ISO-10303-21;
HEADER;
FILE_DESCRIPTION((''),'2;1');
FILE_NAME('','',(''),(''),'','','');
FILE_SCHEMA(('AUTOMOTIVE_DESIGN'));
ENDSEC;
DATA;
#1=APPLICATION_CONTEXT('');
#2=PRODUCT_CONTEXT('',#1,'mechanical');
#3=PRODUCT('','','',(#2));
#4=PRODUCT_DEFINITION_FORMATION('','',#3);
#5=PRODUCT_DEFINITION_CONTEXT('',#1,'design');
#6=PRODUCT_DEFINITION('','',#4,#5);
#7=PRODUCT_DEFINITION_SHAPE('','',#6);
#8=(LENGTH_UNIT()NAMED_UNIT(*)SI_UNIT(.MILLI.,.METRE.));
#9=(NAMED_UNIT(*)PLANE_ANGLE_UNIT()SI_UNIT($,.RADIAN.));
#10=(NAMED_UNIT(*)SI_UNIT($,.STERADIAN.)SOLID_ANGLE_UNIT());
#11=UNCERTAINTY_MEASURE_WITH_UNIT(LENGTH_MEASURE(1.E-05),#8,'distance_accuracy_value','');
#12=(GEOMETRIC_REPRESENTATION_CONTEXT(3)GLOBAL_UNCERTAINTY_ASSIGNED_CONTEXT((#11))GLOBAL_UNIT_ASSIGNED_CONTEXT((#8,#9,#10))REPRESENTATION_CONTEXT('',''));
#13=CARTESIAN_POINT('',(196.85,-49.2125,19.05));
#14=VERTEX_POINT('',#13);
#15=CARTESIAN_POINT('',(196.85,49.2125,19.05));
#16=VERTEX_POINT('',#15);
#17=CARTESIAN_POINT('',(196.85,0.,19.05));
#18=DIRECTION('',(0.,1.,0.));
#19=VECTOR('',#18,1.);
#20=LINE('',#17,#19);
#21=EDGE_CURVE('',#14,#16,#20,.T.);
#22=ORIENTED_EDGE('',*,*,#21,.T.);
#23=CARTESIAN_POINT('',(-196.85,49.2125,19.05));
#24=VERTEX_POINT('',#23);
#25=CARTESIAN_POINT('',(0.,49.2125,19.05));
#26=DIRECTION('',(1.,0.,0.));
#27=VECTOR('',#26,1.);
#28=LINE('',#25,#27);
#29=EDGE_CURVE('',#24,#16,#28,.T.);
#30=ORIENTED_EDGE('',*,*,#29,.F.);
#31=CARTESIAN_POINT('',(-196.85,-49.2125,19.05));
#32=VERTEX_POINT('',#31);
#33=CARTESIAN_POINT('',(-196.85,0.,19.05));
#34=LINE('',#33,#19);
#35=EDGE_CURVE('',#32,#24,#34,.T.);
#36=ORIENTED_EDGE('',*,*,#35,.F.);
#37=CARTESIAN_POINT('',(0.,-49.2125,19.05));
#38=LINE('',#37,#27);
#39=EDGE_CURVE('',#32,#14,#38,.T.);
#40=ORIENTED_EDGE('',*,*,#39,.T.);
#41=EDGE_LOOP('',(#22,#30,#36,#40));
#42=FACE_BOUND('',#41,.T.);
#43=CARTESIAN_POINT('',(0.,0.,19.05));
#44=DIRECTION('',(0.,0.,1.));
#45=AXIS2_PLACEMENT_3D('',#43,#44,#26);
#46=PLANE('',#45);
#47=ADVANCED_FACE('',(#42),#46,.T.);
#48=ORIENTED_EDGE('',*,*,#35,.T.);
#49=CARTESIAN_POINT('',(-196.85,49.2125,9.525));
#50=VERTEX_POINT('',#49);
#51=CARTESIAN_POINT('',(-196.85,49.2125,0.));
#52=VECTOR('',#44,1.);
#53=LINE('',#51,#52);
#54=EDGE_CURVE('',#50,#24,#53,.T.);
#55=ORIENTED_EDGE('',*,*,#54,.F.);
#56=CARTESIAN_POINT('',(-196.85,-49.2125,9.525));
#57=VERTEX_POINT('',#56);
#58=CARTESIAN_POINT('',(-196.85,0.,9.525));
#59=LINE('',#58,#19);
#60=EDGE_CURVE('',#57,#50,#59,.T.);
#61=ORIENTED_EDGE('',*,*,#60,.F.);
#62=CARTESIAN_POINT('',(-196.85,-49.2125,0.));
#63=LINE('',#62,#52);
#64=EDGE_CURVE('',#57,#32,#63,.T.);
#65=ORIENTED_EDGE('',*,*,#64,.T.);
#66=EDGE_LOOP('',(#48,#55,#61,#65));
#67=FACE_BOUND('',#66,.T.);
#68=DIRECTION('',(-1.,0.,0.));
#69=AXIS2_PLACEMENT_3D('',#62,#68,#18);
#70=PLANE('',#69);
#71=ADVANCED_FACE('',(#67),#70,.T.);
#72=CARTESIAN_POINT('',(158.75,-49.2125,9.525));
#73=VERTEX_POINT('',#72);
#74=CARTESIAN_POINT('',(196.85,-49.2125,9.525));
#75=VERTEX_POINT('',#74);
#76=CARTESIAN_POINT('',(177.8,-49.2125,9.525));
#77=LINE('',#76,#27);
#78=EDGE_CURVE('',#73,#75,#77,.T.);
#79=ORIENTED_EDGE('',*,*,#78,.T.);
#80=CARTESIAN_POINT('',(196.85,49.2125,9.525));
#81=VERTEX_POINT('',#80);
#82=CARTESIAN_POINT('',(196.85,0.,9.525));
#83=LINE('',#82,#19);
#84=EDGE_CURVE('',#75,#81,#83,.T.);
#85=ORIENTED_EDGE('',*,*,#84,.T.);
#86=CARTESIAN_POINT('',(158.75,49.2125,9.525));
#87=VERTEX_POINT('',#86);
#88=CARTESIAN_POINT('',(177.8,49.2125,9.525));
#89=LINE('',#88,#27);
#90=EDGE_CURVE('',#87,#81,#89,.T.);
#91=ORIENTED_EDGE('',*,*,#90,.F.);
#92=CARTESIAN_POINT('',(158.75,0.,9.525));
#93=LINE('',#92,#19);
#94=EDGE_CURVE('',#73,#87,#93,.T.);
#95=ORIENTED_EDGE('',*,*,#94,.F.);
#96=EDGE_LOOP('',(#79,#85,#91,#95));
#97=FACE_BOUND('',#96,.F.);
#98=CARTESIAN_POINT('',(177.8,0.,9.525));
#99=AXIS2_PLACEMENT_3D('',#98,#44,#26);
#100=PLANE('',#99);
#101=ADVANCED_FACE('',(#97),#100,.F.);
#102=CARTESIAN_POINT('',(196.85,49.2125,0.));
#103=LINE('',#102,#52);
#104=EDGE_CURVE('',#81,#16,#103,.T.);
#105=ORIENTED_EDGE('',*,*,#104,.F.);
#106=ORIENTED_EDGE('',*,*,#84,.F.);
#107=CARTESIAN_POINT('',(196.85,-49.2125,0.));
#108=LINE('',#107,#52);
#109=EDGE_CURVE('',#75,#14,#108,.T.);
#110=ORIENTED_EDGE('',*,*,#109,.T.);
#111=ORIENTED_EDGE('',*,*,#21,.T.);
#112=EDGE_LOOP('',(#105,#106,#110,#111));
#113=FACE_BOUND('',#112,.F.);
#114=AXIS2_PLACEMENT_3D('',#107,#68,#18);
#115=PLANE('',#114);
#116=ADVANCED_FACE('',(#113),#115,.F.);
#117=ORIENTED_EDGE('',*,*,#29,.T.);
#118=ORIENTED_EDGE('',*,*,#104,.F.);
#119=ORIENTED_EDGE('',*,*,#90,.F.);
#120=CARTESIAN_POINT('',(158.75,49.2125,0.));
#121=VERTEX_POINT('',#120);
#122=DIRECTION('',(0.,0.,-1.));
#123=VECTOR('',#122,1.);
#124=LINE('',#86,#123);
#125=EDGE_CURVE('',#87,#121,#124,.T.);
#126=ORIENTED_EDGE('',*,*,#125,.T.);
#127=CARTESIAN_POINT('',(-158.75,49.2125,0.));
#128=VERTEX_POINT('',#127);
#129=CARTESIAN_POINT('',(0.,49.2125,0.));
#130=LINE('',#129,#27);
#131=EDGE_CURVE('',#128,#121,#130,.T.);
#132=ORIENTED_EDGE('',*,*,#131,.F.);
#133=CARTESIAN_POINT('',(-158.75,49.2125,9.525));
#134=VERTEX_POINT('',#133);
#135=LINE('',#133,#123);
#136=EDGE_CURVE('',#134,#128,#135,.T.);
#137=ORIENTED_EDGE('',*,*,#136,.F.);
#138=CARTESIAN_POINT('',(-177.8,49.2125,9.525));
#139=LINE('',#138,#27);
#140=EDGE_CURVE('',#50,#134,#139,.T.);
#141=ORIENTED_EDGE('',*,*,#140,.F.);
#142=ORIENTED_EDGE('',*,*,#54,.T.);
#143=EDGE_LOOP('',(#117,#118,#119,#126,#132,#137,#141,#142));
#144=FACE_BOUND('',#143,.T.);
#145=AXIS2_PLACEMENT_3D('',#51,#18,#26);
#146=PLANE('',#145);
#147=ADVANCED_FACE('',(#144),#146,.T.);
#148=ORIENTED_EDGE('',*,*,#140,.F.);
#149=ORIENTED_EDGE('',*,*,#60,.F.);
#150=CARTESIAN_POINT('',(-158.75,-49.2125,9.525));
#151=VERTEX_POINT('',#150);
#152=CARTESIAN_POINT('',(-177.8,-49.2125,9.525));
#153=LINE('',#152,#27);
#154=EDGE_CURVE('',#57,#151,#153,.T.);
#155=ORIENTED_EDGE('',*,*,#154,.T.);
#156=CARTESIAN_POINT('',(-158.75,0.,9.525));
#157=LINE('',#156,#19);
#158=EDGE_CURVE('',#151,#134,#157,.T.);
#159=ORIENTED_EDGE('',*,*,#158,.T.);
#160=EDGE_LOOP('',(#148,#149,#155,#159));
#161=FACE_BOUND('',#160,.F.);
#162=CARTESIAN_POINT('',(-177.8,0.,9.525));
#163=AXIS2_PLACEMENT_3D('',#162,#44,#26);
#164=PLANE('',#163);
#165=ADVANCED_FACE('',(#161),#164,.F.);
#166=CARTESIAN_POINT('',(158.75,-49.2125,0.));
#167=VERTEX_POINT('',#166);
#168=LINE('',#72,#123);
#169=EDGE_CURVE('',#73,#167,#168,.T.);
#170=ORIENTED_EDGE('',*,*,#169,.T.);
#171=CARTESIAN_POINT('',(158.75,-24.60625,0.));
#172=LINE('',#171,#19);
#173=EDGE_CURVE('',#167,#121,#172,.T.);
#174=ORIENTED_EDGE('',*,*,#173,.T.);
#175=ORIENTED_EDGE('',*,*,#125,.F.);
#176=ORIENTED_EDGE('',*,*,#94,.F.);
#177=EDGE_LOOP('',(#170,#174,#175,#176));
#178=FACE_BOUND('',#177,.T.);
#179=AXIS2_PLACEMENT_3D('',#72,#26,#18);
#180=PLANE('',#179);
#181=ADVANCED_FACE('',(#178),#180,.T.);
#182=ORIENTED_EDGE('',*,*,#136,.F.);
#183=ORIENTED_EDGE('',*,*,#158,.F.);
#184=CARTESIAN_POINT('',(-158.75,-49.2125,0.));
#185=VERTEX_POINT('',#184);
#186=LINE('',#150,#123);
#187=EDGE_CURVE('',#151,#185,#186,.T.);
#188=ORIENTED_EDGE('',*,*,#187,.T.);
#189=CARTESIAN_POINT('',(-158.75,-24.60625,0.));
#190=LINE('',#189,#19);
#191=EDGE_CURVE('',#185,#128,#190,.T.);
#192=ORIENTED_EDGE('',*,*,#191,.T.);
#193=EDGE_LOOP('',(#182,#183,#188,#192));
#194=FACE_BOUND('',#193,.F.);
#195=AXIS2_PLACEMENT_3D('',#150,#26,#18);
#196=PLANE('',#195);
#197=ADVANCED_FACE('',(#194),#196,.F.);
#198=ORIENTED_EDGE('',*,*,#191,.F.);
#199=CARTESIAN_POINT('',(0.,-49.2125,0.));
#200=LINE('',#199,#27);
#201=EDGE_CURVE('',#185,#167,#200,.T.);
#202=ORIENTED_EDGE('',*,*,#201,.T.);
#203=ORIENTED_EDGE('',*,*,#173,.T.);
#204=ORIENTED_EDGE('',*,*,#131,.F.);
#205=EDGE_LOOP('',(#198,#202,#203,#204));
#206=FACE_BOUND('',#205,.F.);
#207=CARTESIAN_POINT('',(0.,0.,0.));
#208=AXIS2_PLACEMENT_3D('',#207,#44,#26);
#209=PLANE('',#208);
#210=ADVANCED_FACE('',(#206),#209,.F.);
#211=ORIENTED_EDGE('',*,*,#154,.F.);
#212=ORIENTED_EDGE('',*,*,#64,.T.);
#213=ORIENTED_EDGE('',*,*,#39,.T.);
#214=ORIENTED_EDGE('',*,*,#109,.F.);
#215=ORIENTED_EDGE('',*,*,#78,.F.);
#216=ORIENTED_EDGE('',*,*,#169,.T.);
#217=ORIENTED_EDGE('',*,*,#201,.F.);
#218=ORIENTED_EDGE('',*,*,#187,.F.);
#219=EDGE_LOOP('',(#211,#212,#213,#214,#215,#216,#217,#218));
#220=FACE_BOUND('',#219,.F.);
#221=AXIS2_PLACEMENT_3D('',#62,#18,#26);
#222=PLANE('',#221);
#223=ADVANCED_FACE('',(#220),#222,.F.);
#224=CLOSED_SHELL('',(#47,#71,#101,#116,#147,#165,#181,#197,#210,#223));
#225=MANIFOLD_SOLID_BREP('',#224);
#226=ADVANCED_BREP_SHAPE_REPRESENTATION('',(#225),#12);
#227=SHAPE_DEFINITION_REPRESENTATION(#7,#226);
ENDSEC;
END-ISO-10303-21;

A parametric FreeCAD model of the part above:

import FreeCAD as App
import Part
import Sketcher
Q = App.Units.Quantity

doc = App.newDocument("Part")
body = doc.addObject("PartDesign::Body", "Body")

# Sketch on XY plane
sketch1 = body.newObject("Sketcher::SketchObject", "Sketch")
sketch1.AttachmentSupport = (doc.getObject("XY_Plane"), [""])
sketch1.MapMode = "FlatFace"
sketch1.addGeometry(Part.LineSegment(App.Vector(-197, 49, 0), App.Vector(-197, -49, 0)), False)
sketch1.addGeometry(Part.LineSegment(App.Vector(-197, -49, 0), App.Vector(197, -49, 0)), False)
sketch1.addGeometry(Part.LineSegment(App.Vector(197, -49, 0), App.Vector(197, 49, 0)), False)
sketch1.addGeometry(Part.LineSegment(App.Vector(197, 49, 0), App.Vector(-197, 49, 0)), False)
sketch1.addConstraint(Sketcher.Constraint("Coincident", 0, 2, 1, 1))
sketch1.addConstraint(Sketcher.Constraint("Coincident", 1, 2, 2, 1))
sketch1.addConstraint(Sketcher.Constraint("Coincident", 2, 2, 3, 1))
sketch1.addConstraint(Sketcher.Constraint("Coincident", 3, 2, 0, 1))
sketch1.addConstraint(Sketcher.Constraint("Vertical", 0))
sketch1.addConstraint(Sketcher.Constraint("Horizontal", 1))
sketch1.addConstraint(Sketcher.Constraint("Vertical", 2))
sketch1.addConstraint(Sketcher.Constraint("Horizontal", 3))
sketch1.addConstraint(Sketcher.Constraint("Symmetric", 0, 2, 2, 2, -1, 1))
sketch1.addConstraint(Sketcher.Constraint("DistanceX", 1, 1, 1, 2, Q("15.5 in")))
sketch1.addConstraint(Sketcher.Constraint("DistanceY", 0, 2, 0, 1, Q("3.875 in")))
pad1 = body.newObject("PartDesign::Pad", "Pad")
pad1.Profile = sketch1
pad1.Length = Q("0.75 in")

# Sketch on XY plane
sketch2 = body.newObject("Sketcher::SketchObject", "Sketch001")
sketch2.AttachmentSupport = (doc.getObject("XY_Plane"), [""])
sketch2.MapMode = "FlatFace"
sketch2.AttachmentOffset = App.Placement(App.Vector(0, 0, 0.375 * 25.4), App.Rotation())
sketch2.addGeometry(Part.LineSegment(App.Vector(-197, 49, 0), App.Vector(-197, -49, 0)), False)
sketch2.addGeometry(Part.LineSegment(App.Vector(-197, -49, 0), App.Vector(-159, -49, 0)), False)
sketch2.addGeometry(Part.LineSegment(App.Vector(-159, -49, 0), App.Vector(-159, 49, 0)), False)
sketch2.addGeometry(Part.LineSegment(App.Vector(-159, 49, 0), App.Vector(-197, 49, 0)), False)
sketch2.addGeometry(Part.LineSegment(App.Vector(159, 49, 0), App.Vector(159, -49, 0)), False)
sketch2.addGeometry(Part.LineSegment(App.Vector(159, -49, 0), App.Vector(197, -49, 0)), False)
sketch2.addGeometry(Part.LineSegment(App.Vector(197, -49, 0), App.Vector(197, 49, 0)), False)
sketch2.addGeometry(Part.LineSegment(App.Vector(197, 49, 0), App.Vector(159, 49, 0)), False)
sketch2.addConstraint(Sketcher.Constraint("Coincident", 0, 2, 1, 1))
sketch2.addConstraint(Sketcher.Constraint("Coincident", 1, 2, 2, 1))
sketch2.addConstraint(Sketcher.Constraint("Coincident", 2, 2, 3, 1))
sketch2.addConstraint(Sketcher.Constraint("Coincident", 3, 2, 0, 1))
sketch2.addConstraint(Sketcher.Constraint("Coincident", 4, 2, 5, 1))
sketch2.addConstraint(Sketcher.Constraint("Coincident", 5, 2, 6, 1))
sketch2.addConstraint(Sketcher.Constraint("Coincident", 6, 2, 7, 1))
sketch2.addConstraint(Sketcher.Constraint("Coincident", 7, 2, 4, 1))
sketch2.addConstraint(Sketcher.Constraint("Vertical", 0))
sketch2.addConstraint(Sketcher.Constraint("Horizontal", 1))
sketch2.addConstraint(Sketcher.Constraint("Vertical", 2))
sketch2.addConstraint(Sketcher.Constraint("Horizontal", 3))
sketch2.addConstraint(Sketcher.Constraint("Vertical", 4))
sketch2.addConstraint(Sketcher.Constraint("Horizontal", 5))
sketch2.addConstraint(Sketcher.Constraint("Vertical", 6))
sketch2.addConstraint(Sketcher.Constraint("Horizontal", 7))
sketch2.addConstraint(Sketcher.Constraint("Symmetric", 2, 2, 4, 2, -1, 1))
sketch2.addConstraint(Sketcher.Constraint("Symmetric", 0, 2, 6, 2, -1, 1))
sketch2.addConstraint(Sketcher.Constraint("Horizontal", 1, 2, 4, 2))
sketch2.addConstraint(Sketcher.Constraint("DistanceX", 1, 1, 1, 2, Q("1.5 in")))
sketch2.addConstraint(Sketcher.Constraint("DistanceX", 0, 2, 4, 2, Q("14 in")))
sketch2.addConstraint(Sketcher.Constraint("DistanceY", 0, 2, 0, 1, Q("3.875 in")))
pocket1 = body.newObject("PartDesign::Pocket", "Pocket")
pocket1.Profile = sketch2
pocket1.Type = "ThroughAll"

doc.recompute()
